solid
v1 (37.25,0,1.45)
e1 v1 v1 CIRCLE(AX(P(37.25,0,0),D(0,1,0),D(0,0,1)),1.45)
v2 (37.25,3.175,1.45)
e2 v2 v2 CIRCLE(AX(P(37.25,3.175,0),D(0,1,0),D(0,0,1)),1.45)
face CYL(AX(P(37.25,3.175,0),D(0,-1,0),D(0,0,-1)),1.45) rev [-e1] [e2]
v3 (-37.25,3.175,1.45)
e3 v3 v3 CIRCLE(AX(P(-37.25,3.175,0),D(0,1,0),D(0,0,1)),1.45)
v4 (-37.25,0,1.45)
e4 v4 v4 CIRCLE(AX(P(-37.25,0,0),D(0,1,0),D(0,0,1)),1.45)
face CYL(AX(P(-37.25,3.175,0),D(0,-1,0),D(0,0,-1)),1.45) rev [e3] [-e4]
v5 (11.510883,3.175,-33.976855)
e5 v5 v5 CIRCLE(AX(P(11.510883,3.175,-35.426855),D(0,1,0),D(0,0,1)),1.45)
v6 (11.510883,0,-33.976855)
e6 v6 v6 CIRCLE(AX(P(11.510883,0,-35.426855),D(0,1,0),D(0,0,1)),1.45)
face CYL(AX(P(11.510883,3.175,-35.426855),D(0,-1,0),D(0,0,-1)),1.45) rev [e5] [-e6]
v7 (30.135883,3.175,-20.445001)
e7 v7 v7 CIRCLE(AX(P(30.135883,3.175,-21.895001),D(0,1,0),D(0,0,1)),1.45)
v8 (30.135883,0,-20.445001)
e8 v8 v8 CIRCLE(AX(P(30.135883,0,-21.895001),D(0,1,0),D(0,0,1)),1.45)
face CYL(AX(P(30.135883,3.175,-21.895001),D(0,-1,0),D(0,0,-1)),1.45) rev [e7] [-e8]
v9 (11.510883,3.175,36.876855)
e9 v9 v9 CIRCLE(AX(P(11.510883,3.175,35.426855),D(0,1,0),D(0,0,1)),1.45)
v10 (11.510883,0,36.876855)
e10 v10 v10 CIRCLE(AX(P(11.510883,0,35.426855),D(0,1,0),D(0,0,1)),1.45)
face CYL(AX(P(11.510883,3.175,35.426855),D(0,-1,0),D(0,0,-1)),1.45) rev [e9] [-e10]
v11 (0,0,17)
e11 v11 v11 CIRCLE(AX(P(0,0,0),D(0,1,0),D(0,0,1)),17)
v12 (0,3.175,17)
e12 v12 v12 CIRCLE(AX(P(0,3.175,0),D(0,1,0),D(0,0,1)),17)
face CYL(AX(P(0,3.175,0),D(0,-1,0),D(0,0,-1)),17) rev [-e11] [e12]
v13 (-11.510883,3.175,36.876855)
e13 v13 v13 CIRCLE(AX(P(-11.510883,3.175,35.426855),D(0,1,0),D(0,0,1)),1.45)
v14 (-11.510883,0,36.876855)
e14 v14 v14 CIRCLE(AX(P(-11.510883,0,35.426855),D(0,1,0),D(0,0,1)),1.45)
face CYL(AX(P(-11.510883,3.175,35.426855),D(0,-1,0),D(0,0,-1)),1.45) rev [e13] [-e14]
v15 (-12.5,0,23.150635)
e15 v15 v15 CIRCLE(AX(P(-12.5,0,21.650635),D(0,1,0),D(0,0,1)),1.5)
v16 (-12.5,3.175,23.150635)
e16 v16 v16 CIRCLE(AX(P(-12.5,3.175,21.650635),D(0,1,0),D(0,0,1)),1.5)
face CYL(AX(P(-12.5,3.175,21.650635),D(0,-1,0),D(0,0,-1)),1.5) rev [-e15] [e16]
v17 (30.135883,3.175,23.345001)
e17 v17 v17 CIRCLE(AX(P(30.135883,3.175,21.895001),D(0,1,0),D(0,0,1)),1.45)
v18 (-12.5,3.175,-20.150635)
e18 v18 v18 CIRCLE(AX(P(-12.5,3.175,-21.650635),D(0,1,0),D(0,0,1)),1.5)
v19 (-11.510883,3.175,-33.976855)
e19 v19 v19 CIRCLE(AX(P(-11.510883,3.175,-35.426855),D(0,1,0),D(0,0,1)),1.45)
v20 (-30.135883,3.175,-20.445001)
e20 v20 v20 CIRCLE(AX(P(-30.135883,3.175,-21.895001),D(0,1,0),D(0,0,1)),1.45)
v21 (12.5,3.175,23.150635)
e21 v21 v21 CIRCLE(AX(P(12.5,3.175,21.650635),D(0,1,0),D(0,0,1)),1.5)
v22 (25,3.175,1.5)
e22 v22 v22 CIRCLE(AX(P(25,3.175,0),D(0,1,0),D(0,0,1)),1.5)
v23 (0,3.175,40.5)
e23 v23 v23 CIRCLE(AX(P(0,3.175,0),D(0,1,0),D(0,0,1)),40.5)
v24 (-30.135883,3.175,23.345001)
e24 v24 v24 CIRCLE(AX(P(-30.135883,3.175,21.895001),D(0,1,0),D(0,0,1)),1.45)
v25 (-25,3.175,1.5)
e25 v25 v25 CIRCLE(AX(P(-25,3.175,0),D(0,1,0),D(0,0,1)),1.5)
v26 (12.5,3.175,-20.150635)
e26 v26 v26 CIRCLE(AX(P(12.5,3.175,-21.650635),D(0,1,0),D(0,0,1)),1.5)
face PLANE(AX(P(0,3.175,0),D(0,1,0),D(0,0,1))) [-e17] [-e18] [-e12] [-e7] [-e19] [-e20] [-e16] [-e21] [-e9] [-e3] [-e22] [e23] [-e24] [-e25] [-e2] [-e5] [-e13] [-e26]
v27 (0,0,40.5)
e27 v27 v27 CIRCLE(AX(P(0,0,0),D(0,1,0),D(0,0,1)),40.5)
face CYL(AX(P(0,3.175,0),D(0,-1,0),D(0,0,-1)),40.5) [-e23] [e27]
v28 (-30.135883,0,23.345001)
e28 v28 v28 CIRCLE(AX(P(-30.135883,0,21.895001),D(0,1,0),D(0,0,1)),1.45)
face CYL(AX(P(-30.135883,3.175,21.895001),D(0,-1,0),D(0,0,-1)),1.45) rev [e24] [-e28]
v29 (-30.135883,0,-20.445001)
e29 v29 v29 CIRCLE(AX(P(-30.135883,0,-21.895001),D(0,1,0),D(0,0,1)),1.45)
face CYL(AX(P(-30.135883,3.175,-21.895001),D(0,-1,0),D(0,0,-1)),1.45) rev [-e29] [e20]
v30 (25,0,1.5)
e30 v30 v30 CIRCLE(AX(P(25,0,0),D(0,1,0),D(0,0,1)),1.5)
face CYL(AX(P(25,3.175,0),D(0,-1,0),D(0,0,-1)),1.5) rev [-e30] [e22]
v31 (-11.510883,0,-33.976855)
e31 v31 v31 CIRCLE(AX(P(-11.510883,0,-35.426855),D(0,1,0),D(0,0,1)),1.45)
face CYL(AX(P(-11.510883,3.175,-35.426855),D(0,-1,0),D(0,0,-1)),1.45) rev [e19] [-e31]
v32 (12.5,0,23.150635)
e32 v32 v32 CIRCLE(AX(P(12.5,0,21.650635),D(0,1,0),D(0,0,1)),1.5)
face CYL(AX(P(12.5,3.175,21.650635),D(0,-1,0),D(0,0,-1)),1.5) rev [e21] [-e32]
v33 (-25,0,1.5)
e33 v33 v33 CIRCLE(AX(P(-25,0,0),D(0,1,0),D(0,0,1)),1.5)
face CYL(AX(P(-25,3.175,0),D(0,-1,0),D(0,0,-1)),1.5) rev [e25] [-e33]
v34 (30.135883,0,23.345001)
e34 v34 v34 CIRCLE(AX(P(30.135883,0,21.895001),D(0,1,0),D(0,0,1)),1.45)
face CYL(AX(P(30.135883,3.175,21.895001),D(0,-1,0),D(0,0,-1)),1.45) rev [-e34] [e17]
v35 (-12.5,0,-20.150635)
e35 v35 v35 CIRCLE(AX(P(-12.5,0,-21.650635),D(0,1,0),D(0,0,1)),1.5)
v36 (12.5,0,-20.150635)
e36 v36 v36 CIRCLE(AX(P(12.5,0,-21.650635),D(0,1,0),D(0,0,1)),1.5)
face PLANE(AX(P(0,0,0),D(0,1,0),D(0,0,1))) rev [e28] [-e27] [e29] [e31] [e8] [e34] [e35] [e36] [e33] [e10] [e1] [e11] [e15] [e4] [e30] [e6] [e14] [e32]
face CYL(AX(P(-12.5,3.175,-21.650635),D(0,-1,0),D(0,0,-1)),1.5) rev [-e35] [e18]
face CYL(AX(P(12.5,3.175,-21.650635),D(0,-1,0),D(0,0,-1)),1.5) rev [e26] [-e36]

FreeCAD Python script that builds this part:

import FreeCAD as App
import Part
import Sketcher

V = App.Vector

doc = App.newDocument("Part")
body = doc.addObject("PartDesign::Body", "Body")

# Sketch on XZ plane
sketch1 = doc.addObject("Sketcher::SketchObject", "Sketch")
body.addObject(sketch1)
sketch1.AttachmentSupport = (doc.XZ_Plane, [""])
sketch1.MapMode = "FlatFace"
sketch1.addGeometry([
    Part.Circle(V(0, 0, 0), V(0, 0, 1), 40.5),  # 0
    Part.Circle(V(-30.1, -21.9, 0), V(0, 0, 1), 1.4),  # 1
    Part.Circle(V(-11.5, -35.4, 0), V(0, 0, 1), 1.4),  # 2
    Part.Circle(V(-12.5, -21.7, 0), V(0, 0, 1), 1.5),  # 3
    Part.Circle(V(-37.2, 0, 0), V(0, 0, 1), 1.4),  # 4
    Part.Circle(V(-25, 0, 0), V(0, 0, 1), 1.5),  # 5
    Part.Circle(V(-30.1, 21.9, 0), V(0, 0, 1), 1.4),  # 6
    Part.Circle(V(-12.5, 21.7, 0), V(0, 0, 1), 1.5),  # 7
    Part.Circle(V(-11.5, 35.4, 0), V(0, 0, 1), 1.4),  # 8
    Part.Circle(V(11.5, -35.4, 0), V(0, 0, 1), 1.4),  # 9
    Part.Circle(V(12.5, -21.7, 0), V(0, 0, 1), 1.5),  # 10
    Part.Circle(V(30.1, -21.9, 0), V(0, 0, 1), 1.4),  # 11
    Part.Circle(V(37.2, 0, 0), V(0, 0, 1), 1.4),  # 12
    Part.Circle(V(0, 0, 0), V(0, 0, 1), 17),  # 13
    Part.Circle(V(12.5, 21.7, 0), V(0, 0, 1), 1.5),  # 14
    Part.Circle(V(11.5, 35.4, 0), V(0, 0, 1), 1.4),  # 15
    Part.Circle(V(25, 0, 0), V(0, 0, 1), 1.5),  # 16
    Part.Circle(V(30.1, 21.9, 0), V(0, 0, 1), 1.4),  # 17
], False)
sketch1.addConstraint([
    Sketcher.Constraint("Coincident", 0, 3, -1, 1),
    Sketcher.Constraint("Coincident", 13, 3, -1, 1),
    Sketcher.Constraint("Equal", 1, 2),
    Sketcher.Constraint("Equal", 2, 4),
    Sketcher.Constraint("Equal", 3, 5),
    Sketcher.Constraint("Equal", 4, 6),
    Sketcher.Constraint("Equal", 5, 7),
    Sketcher.Constraint("Equal", 6, 8),
    Sketcher.Constraint("Equal", 8, 9),
    Sketcher.Constraint("Equal", 7, 10),
    Sketcher.Constraint("Equal", 9, 11),
    Sketcher.Constraint("Equal", 11, 12),
    Sketcher.Constraint("Equal", 10, 14),
    Sketcher.Constraint("Equal", 12, 15),
    Sketcher.Constraint("Equal", 14, 16),
    Sketcher.Constraint("Equal", 15, 17),
    Sketcher.Constraint("Symmetric", 8, 3, 9, 3, -1, 1),
    Sketcher.Constraint("Symmetric", 7, 3, 10, 3, -1, 1),
    Sketcher.Constraint("Symmetric", 6, 3, 11, 3, -1, 1),
    Sketcher.Constraint("Symmetric", 4, 3, 12, 3, -1, 1),
    Sketcher.Constraint("Symmetric", 3, 3, 14, 3, -1, 1),
    Sketcher.Constraint("Symmetric", 2, 3, 15, 3, -1, 1),
    Sketcher.Constraint("Symmetric", 5, 3, 16, 3, -1, 1),
    Sketcher.Constraint("Symmetric", 1, 3, 17, 3, -1, 1),
    Sketcher.Constraint("Symmetric", 2, 3, 9, 3, -2),
    Sketcher.Constraint("Symmetric", 3, 3, 10, 3, -2),
    Sketcher.Constraint("Symmetric", 1, 3, 11, 3, -2),
    Sketcher.Constraint("PointOnObject", 4, 3, -1),
    Sketcher.Constraint("PointOnObject", 5, 3, -1),
    Sketcher.Constraint("Diameter", 0, 81.0),
    Sketcher.Constraint("Diameter", 3, 3.0),
    Sketcher.Constraint("Diameter", 13, 34.0),
    Sketcher.Constraint("Diameter", 1, 2.9),
    Sketcher.Constraint("DistanceX", 5, 3, -1, 1, 25.0),
    Sketcher.Constraint("DistanceX", 3, 3, 10, 3, 25.0),
    Sketcher.Constraint("DistanceX", 4, 3, -1, 1, 37.25),
    Sketcher.Constraint("DistanceY", 1, 3, 6, 3, 43.790001),
    Sketcher.Constraint("DistanceX", 1, 3, 2, 3, 18.625),
    Sketcher.Constraint("DistanceY", 2, 3, 3, 3, 13.77622),
    Sketcher.Constraint("DistanceY", 3, 3, 7, 3, 43.30127),
    Sketcher.Constraint("DistanceX", 1, 3, -1, 1, 30.135883),
])
pad1 = doc.addObject("PartDesign::Pad", "Pad")
body.addObject(pad1)
pad1.Profile = sketch1
pad1.Length = 3.175
pad1.Reversed = True

doc.recompute()
